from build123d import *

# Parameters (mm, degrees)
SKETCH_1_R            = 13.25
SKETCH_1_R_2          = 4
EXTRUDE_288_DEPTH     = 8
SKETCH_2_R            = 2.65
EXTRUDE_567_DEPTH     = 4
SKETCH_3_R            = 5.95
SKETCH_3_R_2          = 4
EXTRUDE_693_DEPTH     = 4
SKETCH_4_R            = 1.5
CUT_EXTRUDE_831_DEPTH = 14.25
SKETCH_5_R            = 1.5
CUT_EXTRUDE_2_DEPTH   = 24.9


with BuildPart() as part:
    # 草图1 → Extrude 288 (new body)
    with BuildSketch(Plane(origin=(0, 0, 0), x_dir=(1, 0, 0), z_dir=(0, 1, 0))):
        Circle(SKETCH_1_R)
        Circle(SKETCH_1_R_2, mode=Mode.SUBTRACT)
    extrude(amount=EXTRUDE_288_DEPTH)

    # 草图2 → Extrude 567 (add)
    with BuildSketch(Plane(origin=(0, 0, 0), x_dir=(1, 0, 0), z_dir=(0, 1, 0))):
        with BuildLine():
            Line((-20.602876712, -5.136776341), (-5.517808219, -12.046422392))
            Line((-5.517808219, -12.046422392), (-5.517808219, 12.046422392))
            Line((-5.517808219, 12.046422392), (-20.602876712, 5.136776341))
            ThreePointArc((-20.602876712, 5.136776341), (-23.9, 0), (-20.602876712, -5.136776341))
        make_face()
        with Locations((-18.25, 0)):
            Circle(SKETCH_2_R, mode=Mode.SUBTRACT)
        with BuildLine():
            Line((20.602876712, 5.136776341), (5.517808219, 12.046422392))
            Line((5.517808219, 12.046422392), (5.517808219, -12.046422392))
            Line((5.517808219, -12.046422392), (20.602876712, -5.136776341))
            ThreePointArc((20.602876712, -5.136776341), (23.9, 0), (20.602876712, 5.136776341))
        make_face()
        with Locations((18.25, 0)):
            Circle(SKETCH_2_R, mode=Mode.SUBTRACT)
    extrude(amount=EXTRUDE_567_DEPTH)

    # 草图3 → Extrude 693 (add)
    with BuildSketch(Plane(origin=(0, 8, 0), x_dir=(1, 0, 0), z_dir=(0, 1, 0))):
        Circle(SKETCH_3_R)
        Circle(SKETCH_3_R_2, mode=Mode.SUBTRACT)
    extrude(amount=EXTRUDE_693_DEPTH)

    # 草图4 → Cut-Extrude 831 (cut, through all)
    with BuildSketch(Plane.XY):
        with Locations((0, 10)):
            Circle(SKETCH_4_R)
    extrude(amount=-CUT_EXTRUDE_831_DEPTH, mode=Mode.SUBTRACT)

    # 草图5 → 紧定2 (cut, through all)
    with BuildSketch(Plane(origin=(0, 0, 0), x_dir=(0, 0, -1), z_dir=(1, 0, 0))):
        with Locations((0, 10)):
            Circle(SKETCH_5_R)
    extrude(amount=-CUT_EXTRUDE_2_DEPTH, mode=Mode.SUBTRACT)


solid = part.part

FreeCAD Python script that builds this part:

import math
import FreeCAD as App
import Part
import Sketcher
Q = App.Units.Quantity

doc = App.newDocument("Part")
body = doc.addObject("PartDesign::Body", "Body")

# Sketch on XZ plane
sketch1 = body.newObject("Sketcher::SketchObject", "Sketch")
sketch1.AttachmentSupport = (doc.getObject("XZ_Plane"), [""])
sketch1.MapMode = "FlatFace"
sketch1.addGeometry([
    Part.Circle(App.Vector(0, 0, 0), App.Vector(0, 0, 1), 13.2),
    Part.Circle(App.Vector(0, 0, 0), App.Vector(0, 0, 1), 4),
], False)
sketch1.addConstraint([
    Sketcher.Constraint("Coincident", 0, 3, -1, 1),
    Sketcher.Constraint("Coincident", 1, 3, -1, 1),
    Sketcher.Constraint("Diameter", 1, Q("8 mm")),
    Sketcher.Constraint("Diameter", 0, Q("26.5 mm")),
])
pad1 = body.newObject("PartDesign::Pad", "Pad")
pad1.Profile = sketch1
pad1.Length = 8
pad1.Reversed = True

# Sketch on XZ plane
sketch2 = body.newObject("Sketcher::SketchObject", "Sketch001")
sketch2.AttachmentSupport = (doc.getObject("XZ_Plane"), [""])
sketch2.MapMode = "FlatFace"
sketch2.addGeometry([
    Part.LineSegment(App.Vector(-20.6, 5.1, 0), App.Vector(-5.5, 12, 0)),  # 0
    Part.LineSegment(App.Vector(-5.5, 12, 0), App.Vector(-5.5, -12, 0)),  # 1
    Part.LineSegment(App.Vector(-5.5, -12, 0), App.Vector(-20.6, -5.1, 0)),  # 2
    Part.ArcOfCircle(Part.Circle(App.Vector(-18.2, 0, 0), App.Vector(0, 0, 1), 5.7), math.radians(115), math.radians(245)),  # 3
    Part.Circle(App.Vector(-18.2, 0, 0), App.Vector(0, 0, 1), 2.6),  # 4
    Part.LineSegment(App.Vector(20.6, -5.1, 0), App.Vector(5.5, -12, 0)),  # 5
    Part.LineSegment(App.Vector(5.5, -12, 0), App.Vector(5.5, 12, 0)),  # 6
    Part.LineSegment(App.Vector(5.5, 12, 0), App.Vector(20.6, 5.1, 0)),  # 7
    Part.ArcOfCircle(Part.Circle(App.Vector(18.2, 0, 0), App.Vector(0, 0, 1), 5.7), math.radians(-65), math.radians(65)),  # 8
    Part.Circle(App.Vector(18.2, 0, 0), App.Vector(0, 0, 1), 2.6),  # 9
], False)
sketch2.addConstraint([
    Sketcher.Constraint("Coincident", 0, 2, 1, 1),
    Sketcher.Constraint("Coincident", 1, 2, 2, 1),
    Sketcher.Constraint("Tangent", 2, 2, 3, 2),
    Sketcher.Constraint("Tangent", 3, 1, 0, 1),
    Sketcher.Constraint("Coincident", 5, 2, 6, 1),
    Sketcher.Constraint("Coincident", 6, 2, 7, 1),
    Sketcher.Constraint("Tangent", 7, 2, 8, 2),
    Sketcher.Constraint("Tangent", 8, 1, 5, 1),
    Sketcher.Constraint("Vertical", 1),
    Sketcher.Constraint("Vertical", 6),
    Sketcher.Constraint("Coincident", 4, 3, 3, 3),
    Sketcher.Constraint("Coincident", 9, 3, 8, 3),
    Sketcher.Constraint("Equal", 3, 8),
    Sketcher.Constraint("Equal", 4, 9),
    Sketcher.Constraint("Symmetric", 3, 3, 8, 3, -1, 1),
    Sketcher.Constraint("Symmetric", 0, 2, 5, 2, -1, 1),
    Sketcher.Constraint("Symmetric", 3, 1, 7, 2, -2),
    Sketcher.Constraint("Parallel", 2, 7),
    Sketcher.Constraint("Diameter", 4, Q("5.3 mm")),
    Sketcher.Constraint("Radius", 3, Q("5.65 mm")),
    Sketcher.Constraint("DistanceX", 3, 3, 8, 3, Q("36.5 mm")),
    Sketcher.Constraint("DistanceY", 2, 2, 0, 2, Q("17.183199 mm")),
    Sketcher.Constraint("DistanceY", 1, 2, 1, 1, Q("24.092845 mm")),
])
pad2 = body.newObject("PartDesign::Pad", "Pad001")
pad2.Profile = sketch2
pad2.Length = 4
pad2.Reversed = True

# Sketch on XZ plane
sketch3 = body.newObject("Sketcher::SketchObject", "Sketch002")
sketch3.AttachmentSupport = (doc.getObject("XZ_Plane"), [""])
sketch3.MapMode = "FlatFace"
sketch3.AttachmentOffset = App.Placement(App.Vector(0, 0, -8), App.Rotation())
sketch3.addGeometry([
    Part.Circle(App.Vector(0, 0, 0), App.Vector(0, 0, 1), 6),
    Part.Circle(App.Vector(0, 0, 0), App.Vector(0, 0, 1), 4),
], False)
sketch3.addConstraint([
    Sketcher.Constraint("Coincident", 0, 3, -1, 1),
    Sketcher.Constraint("Coincident", 1, 3, -1, 1),
    Sketcher.Constraint("Diameter", 1, Q("8 mm")),
    Sketcher.Constraint("Diameter", 0, Q("11.9 mm")),
])
pad3 = body.newObject("PartDesign::Pad", "Pad002")
pad3.Profile = sketch3
pad3.Length = 4
pad3.Reversed = True

# Sketch on XY plane
sketch4 = body.newObject("Sketcher::SketchObject", "Sketch003")
sketch4.AttachmentSupport = (doc.getObject("XY_Plane"), [""])
sketch4.MapMode = "FlatFace"
sketch4.addGeometry(Part.Circle(App.Vector(0, 10, 0), App.Vector(0, 0, 1), 1.5), False)
sketch4.addConstraint([
    Sketcher.Constraint("PointOnObject", 0, 3, -2),
    Sketcher.Constraint("Diameter", 0, Q("3 mm")),
    Sketcher.Constraint("DistanceY", -1, 1, 0, 3, Q("10 mm")),
])
pocket1 = body.newObject("PartDesign::Pocket", "Pocket")
pocket1.Profile = sketch4
pocket1.Type = "ThroughAll"

# Sketch on YZ plane
sketch5 = body.newObject("Sketcher::SketchObject", "Sketch004")
sketch5.AttachmentSupport = (doc.getObject("YZ_Plane"), [""])
sketch5.MapMode = "FlatFace"
sketch5.addGeometry(Part.Circle(App.Vector(10, 0, 0), App.Vector(0, 0, 1), 1.5), False)
sketch5.addConstraint([
    Sketcher.Constraint("PointOnObject", 0, 3, -1),
    Sketcher.Constraint("Diameter", 0, Q("3 mm")),
    Sketcher.Constraint("DistanceX", -1, 1, 0, 3, Q("10 mm")),
])
pocket2 = body.newObject("PartDesign::Pocket", "Pocket001")
pocket2.Profile = sketch5
pocket2.Type = "ThroughAll"

doc.recompute()
